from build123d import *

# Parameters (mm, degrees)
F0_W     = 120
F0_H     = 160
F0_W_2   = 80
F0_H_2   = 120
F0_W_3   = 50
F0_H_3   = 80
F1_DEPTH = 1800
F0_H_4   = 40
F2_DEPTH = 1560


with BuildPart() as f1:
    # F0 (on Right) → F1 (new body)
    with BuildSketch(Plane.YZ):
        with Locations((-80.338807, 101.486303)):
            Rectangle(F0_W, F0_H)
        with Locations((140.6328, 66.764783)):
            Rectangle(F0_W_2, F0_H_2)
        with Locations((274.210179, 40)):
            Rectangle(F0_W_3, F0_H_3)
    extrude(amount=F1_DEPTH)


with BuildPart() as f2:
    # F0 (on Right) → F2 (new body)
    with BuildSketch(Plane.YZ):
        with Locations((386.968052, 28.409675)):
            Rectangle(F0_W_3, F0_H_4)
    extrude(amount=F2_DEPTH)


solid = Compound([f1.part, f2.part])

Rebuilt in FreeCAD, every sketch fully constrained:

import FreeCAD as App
import Part
import Sketcher

V = App.Vector


def add_polygon(sketch, points):
    """Adds a closed chain of lines whose ends are joined by coincident constraints."""
    first, n = sketch.GeometryCount, len(points)
    for a, b in zip(points, points[1:] + points[:1]):
        sketch.addGeometry(Part.LineSegment(App.Vector(*a, 0), App.Vector(*b, 0)), False)
    for i in range(n):
        sketch.addConstraint(Sketcher.Constraint("Coincident", first + i, 2, first + (i + 1) % n, 1))

doc = App.newDocument("Part")
body = doc.addObject("PartDesign::Body", "Body")
body.AllowCompound = True

# Sketch on YZ plane
sketch1 = doc.addObject("Sketcher::SketchObject", "Sketch")
body.addObject(sketch1)
sketch1.AttachmentSupport = (doc.YZ_Plane, [""])
sketch1.MapMode = "FlatFace"
add_polygon(sketch1, [(-140, 181), (-140, 21), (-20, 21), (-20, 181)])  # lines 0-3
add_polygon(sketch1, [(101, 127), (101, 7), (181, 7), (181, 127)])  # lines 4-7
add_polygon(sketch1, [(249, 80), (249, 0), (299, 0), (299, 80)])  # lines 8-11
sketch1.addConstraint(Sketcher.Constraint("Vertical", 0))
sketch1.addConstraint(Sketcher.Constraint("Horizontal", 1))
sketch1.addConstraint(Sketcher.Constraint("Vertical", 2))
sketch1.addConstraint(Sketcher.Constraint("Horizontal", 3))
sketch1.addConstraint(Sketcher.Constraint("Vertical", 4))
sketch1.addConstraint(Sketcher.Constraint("Horizontal", 5))
sketch1.addConstraint(Sketcher.Constraint("Vertical", 6))
sketch1.addConstraint(Sketcher.Constraint("Horizontal", 7))
sketch1.addConstraint(Sketcher.Constraint("Vertical", 8))
sketch1.addConstraint(Sketcher.Constraint("Horizontal", 9))
sketch1.addConstraint(Sketcher.Constraint("Vertical", 10))
sketch1.addConstraint(Sketcher.Constraint("Horizontal", 11))
sketch1.addConstraint(Sketcher.Constraint("PointOnObject", 8, 2, -1))
sketch1.addConstraint(Sketcher.Constraint("Equal", 3, 4))
sketch1.addConstraint(Sketcher.Constraint("Equal", 7, 8))
sketch1.addConstraint(Sketcher.Constraint("DistanceX", 1, 1, 1, 2, 120.0))
sketch1.addConstraint(Sketcher.Constraint("DistanceX", 5, 1, 5, 2, 80.0))
sketch1.addConstraint(Sketcher.Constraint("DistanceX", 9, 1, 9, 2, 50.0))
sketch1.addConstraint(Sketcher.Constraint("DistanceY", 0, 2, 0, 1, 160.0))
sketch1.addConstraint(Sketcher.Constraint("DistanceX", -1, 1, 4, 2, 100.6328))
sketch1.addConstraint(Sketcher.Constraint("DistanceX", -1, 1, 8, 2, 249.210179))
sketch1.addConstraint(Sketcher.Constraint("DistanceY", 4, 2, 1, 2, 14.72152))
sketch1.addConstraint(Sketcher.Constraint("DistanceX", 0, 2, -1, 1, 140.338807))
sketch1.addConstraint(Sketcher.Constraint("DistanceY", -1, 1, 0, 2, 21.486303))
pad1 = doc.addObject("PartDesign::Pad", "Pad")
body.addObject(pad1)
pad1.Profile = sketch1
pad1.Length = 1800
body2 = doc.addObject("PartDesign::Body", "Body001")

# Sketch on YZ plane
sketch2 = doc.addObject("Sketcher::SketchObject", "Sketch001")
body2.addObject(sketch2)
sketch2.AttachmentSupport = (doc.getObject("YZ_Plane001"), [""])
sketch2.MapMode = "FlatFace"
add_polygon(sketch2, [(362, 48), (362, 8), (412, 8), (412, 48)])  # lines 0-3
sketch2.addConstraint(Sketcher.Constraint("Vertical", 0))
sketch2.addConstraint(Sketcher.Constraint("Horizontal", 1))
sketch2.addConstraint(Sketcher.Constraint("Vertical", 2))
sketch2.addConstraint(Sketcher.Constraint("Horizontal", 3))
sketch2.addConstraint(Sketcher.Constraint("DistanceX", 1, 1, 1, 2, 50.0))
sketch2.addConstraint(Sketcher.Constraint("DistanceY", 0, 2, 0, 1, 40.0))
sketch2.addConstraint(Sketcher.Constraint("DistanceX", -1, 1, 0, 2, 361.968052))
sketch2.addConstraint(Sketcher.Constraint("DistanceY", -1, 1, 0, 2, 8.409675))
pad2 = doc.addObject("PartDesign::Pad", "Pad001")
body2.addObject(pad2)
pad2.Profile = sketch2
pad2.Length = 1560

doc.recompute()
